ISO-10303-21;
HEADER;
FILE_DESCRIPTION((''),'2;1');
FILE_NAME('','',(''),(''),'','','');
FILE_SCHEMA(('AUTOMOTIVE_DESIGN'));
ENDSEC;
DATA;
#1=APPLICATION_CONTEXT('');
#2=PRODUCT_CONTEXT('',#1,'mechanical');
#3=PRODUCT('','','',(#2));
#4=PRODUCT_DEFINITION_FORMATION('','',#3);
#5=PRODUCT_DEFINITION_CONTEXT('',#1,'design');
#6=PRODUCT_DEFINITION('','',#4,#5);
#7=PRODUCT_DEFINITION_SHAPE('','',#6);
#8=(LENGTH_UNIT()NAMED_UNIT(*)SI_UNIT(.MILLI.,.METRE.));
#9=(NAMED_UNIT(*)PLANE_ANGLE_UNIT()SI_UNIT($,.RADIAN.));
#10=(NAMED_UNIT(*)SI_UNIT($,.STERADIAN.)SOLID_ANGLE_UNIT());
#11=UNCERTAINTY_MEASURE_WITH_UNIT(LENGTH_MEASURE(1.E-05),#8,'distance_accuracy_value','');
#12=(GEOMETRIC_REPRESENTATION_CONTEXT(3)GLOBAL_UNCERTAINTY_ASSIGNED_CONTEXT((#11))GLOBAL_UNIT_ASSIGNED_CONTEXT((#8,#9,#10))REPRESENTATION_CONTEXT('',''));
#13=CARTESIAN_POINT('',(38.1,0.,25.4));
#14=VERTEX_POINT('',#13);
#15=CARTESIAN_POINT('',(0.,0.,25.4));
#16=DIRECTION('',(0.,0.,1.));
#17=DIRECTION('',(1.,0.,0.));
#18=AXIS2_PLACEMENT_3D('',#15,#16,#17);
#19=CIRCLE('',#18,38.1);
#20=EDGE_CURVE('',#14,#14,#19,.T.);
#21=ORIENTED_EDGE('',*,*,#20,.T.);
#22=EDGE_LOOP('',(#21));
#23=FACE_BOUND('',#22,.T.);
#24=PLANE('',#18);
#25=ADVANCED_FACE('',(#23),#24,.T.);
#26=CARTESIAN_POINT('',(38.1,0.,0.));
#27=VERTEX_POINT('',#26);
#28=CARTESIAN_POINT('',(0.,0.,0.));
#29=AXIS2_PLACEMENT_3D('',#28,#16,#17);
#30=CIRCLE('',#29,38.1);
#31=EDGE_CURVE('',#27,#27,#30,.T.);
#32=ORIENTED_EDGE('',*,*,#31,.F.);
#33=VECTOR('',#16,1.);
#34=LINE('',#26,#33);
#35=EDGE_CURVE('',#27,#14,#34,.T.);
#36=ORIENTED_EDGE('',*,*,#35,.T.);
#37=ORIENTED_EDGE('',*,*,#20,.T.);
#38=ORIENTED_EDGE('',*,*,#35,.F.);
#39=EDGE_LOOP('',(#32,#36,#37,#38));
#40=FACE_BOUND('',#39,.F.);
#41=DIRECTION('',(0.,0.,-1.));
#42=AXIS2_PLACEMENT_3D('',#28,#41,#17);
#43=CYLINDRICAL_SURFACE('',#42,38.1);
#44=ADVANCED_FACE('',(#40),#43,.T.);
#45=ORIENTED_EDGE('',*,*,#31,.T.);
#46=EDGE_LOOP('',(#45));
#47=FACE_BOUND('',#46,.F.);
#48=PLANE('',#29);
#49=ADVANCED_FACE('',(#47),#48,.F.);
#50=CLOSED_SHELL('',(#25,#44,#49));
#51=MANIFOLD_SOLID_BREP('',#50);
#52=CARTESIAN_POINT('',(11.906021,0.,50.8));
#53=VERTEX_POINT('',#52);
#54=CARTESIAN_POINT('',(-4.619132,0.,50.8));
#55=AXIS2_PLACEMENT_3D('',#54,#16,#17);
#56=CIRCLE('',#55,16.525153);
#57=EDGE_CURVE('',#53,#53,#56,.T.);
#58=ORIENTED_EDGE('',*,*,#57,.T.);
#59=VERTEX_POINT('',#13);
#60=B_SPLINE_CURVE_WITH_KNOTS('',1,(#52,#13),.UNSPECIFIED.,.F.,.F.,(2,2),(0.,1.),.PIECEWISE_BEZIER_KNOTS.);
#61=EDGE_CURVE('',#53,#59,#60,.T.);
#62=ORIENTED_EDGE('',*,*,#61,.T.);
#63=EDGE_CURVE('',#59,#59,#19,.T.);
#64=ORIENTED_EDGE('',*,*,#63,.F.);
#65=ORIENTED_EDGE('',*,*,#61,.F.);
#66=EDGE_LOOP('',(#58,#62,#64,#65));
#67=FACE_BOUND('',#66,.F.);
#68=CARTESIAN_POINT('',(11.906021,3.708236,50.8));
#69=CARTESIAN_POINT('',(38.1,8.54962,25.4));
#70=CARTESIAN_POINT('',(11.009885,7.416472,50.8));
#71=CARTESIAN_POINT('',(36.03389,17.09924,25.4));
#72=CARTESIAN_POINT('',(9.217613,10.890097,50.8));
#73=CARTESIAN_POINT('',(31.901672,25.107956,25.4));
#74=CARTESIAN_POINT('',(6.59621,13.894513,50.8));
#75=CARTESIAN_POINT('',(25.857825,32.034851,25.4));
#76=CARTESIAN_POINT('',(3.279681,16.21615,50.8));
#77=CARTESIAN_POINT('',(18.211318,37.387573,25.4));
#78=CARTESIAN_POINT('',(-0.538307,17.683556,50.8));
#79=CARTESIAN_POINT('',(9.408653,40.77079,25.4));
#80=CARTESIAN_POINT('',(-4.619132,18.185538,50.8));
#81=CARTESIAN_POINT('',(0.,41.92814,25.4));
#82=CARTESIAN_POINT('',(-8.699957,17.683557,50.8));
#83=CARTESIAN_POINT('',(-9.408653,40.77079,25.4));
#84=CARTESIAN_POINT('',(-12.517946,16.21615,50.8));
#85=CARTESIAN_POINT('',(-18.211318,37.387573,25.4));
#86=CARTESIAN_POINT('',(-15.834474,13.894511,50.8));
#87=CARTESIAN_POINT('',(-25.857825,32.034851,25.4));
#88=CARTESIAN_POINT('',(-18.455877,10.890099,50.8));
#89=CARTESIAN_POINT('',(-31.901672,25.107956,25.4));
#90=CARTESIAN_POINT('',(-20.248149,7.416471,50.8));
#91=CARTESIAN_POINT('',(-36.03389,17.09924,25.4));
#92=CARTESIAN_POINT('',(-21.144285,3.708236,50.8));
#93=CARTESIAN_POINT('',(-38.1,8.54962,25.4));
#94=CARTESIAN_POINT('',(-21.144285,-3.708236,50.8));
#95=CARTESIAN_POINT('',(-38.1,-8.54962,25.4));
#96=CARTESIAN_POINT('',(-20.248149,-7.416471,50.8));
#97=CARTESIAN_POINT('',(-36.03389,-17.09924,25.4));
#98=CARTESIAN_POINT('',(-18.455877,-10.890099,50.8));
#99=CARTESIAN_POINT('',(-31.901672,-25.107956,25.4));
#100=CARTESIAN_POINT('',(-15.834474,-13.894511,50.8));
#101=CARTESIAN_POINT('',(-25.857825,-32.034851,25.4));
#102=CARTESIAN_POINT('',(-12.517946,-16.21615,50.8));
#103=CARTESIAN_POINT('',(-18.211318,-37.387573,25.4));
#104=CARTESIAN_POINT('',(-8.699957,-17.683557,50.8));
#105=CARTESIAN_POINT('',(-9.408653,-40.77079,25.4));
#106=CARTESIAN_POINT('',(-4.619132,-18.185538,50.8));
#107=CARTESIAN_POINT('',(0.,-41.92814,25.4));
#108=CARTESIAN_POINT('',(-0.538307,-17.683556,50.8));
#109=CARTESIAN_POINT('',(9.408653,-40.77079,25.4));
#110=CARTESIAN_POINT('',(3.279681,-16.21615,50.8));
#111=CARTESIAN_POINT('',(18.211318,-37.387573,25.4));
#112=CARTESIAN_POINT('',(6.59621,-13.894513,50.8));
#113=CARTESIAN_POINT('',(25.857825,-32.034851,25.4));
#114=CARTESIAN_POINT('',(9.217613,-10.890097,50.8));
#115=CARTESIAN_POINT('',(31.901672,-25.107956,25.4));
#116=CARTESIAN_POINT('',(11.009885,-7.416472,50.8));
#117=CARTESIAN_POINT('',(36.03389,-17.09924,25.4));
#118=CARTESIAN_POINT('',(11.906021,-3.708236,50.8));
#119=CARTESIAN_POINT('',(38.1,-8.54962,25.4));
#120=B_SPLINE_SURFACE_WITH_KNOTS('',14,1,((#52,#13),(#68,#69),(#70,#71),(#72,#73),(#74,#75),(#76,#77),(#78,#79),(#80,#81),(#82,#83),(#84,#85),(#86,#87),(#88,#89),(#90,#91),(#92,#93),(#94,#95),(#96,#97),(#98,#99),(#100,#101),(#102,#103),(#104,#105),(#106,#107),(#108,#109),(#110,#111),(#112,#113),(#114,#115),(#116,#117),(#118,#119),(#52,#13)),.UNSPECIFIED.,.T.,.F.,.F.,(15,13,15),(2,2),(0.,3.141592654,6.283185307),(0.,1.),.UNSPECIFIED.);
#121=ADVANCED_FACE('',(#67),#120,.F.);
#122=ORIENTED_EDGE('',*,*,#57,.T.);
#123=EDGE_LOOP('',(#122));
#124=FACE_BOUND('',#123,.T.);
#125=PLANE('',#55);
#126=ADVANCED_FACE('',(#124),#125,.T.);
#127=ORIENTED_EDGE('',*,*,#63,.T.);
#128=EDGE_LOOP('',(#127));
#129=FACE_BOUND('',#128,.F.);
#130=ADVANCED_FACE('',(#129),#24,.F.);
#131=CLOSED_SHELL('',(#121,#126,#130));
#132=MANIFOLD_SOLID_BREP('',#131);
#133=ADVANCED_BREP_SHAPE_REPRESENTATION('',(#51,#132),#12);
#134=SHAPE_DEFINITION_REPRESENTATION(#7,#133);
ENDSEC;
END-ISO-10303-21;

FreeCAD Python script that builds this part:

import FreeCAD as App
import Part
import Sketcher
Q = App.Units.Quantity

doc = App.newDocument("Part")
body = doc.addObject("PartDesign::Body", "Body")

# Sketch on XY plane
sketch1 = body.newObject("Sketcher::SketchObject", "Sketch")
sketch1.AttachmentSupport = (doc.getObject("XY_Plane"), [""])
sketch1.MapMode = "FlatFace"
sketch1.addGeometry(Part.Circle(App.Vector(0, 0, 0), App.Vector(0, 0, 1), 38), False)
sketch1.addConstraint([
    Sketcher.Constraint("Coincident", 0, 3, -1, 1),
    Sketcher.Constraint("Diameter", 0, Q("3 in")),
])
pad1 = body.newObject("PartDesign::Pad", "Pad")
pad1.Profile = sketch1
pad1.Length = Q("1 in")
body2 = doc.addObject("PartDesign::Body", "Body001")

# Sketch on XY plane
sketch2 = body2.newObject("Sketcher::SketchObject", "Sketch001")
sketch2.AttachmentSupport = (doc.getObject("XY_Plane001"), [""])
sketch2.MapMode = "FlatFace"
sketch2.AttachmentOffset = App.Placement(App.Vector(0, 0, 2 * 25.4), App.Rotation())
sketch2.addGeometry(Part.Circle(App.Vector(-5, 0, 0), App.Vector(0, 0, 1), 17), False)
sketch2.addConstraint([
    Sketcher.Constraint("PointOnObject", 0, 3, -1),
    Sketcher.Constraint("Diameter", 0, Q("33.050306 mm")),
    Sketcher.Constraint("DistanceX", 0, 3, -1, 1, Q("4.619132 mm")),
])

# Sketch on XY plane
sketch3 = body2.newObject("Sketcher::SketchObject", "Sketch002")
sketch3.AttachmentSupport = (doc.getObject("XY_Plane001"), [""])
sketch3.MapMode = "FlatFace"
sketch3.AttachmentOffset = App.Placement(App.Vector(0, 0, 1 * 25.4), App.Rotation())
sketch3.addGeometry(Part.Circle(App.Vector(0, 0, 0), App.Vector(0, 0, 1), 38), False)
sketch3.addConstraint([
    Sketcher.Constraint("Coincident", 0, 3, -1, 1),
    Sketcher.Constraint("Diameter", 0, Q("3 in")),
])

additiveloft = body2.newObject("PartDesign::AdditiveLoft", "AdditiveLoft")
additiveloft.Profile = sketch2
additiveloft.Sections = [sketch3]

doc.recompute()
